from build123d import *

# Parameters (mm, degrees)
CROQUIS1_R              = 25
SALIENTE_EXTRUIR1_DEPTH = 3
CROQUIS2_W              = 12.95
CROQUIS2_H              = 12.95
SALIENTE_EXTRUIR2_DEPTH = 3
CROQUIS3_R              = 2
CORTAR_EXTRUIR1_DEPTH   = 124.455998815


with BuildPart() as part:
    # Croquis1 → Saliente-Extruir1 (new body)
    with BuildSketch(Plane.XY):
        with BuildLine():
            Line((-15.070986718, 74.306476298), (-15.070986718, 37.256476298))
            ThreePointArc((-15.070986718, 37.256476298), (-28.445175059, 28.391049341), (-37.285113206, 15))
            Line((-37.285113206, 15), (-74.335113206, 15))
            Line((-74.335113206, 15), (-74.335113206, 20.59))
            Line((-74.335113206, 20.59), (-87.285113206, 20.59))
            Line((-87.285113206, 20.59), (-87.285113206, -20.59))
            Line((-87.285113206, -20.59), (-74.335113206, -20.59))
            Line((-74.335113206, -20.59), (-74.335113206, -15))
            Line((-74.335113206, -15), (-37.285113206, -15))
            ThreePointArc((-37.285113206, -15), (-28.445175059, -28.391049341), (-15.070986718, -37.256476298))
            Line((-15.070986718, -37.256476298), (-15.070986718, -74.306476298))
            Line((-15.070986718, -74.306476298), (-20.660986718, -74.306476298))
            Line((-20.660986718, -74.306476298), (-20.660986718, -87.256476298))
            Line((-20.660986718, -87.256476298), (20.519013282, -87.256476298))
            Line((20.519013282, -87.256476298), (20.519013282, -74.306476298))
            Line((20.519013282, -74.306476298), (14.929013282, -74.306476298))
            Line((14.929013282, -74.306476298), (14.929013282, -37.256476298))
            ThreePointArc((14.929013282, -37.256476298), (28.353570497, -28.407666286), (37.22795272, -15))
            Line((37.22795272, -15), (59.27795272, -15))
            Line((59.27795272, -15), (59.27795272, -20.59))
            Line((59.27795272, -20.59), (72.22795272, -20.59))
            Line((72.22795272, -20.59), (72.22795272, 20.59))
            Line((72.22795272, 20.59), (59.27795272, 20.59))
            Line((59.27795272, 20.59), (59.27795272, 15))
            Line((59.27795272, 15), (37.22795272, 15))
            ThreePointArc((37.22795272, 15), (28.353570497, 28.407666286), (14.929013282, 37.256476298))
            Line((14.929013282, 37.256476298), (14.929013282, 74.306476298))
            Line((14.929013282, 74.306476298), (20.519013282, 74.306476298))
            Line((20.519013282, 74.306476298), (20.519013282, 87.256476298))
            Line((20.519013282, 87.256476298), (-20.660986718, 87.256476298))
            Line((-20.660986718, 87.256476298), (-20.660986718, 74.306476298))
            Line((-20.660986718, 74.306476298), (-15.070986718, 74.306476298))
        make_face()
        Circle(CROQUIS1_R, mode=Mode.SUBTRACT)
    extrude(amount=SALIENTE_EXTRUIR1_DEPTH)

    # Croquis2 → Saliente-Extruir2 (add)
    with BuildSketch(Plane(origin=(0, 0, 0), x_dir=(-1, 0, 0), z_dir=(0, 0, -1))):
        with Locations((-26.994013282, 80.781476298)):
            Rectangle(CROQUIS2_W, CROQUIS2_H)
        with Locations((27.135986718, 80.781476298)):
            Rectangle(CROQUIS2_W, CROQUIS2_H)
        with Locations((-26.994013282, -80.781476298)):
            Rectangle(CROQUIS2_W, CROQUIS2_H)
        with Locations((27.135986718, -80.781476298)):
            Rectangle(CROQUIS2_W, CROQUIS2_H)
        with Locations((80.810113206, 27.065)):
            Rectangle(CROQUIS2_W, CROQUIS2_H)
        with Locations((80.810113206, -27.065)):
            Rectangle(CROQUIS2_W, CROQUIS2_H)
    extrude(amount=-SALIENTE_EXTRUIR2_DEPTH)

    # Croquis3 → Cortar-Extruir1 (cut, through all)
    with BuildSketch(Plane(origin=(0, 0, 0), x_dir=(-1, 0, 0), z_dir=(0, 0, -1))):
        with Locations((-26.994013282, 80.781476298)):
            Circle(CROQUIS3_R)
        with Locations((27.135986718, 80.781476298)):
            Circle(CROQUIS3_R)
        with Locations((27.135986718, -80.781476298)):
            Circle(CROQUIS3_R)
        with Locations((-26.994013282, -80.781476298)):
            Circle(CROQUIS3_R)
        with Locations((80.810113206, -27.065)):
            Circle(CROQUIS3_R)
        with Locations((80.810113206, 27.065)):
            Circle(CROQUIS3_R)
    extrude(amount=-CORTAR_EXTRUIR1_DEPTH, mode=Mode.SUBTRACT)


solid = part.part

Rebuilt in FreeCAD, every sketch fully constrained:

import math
import FreeCAD as App
import Part
import Sketcher
from FreeCAD import Vector
Q = App.Units.Quantity

doc = App.newDocument("Part")
body = doc.addObject("PartDesign::Body", "Body")

# Sketch on XY plane
sketch1 = body.newObject("Sketcher::SketchObject", "Sketch")
sketch1.AttachmentSupport = (doc.getObject("XY_Plane"), [""])
sketch1.MapMode = "FlatFace"
sketch1.addGeometry(Part.LineSegment(Vector(-15, 74, 0), Vector(-15, 37, 0)), False)
sketch1.addGeometry(Part.ArcOfCircle(Part.Circle(Vector(0, 0, 0), Vector(0, 0, 1), 40), math.radians(112), math.radians(158)), False)
sketch1.addGeometry(Part.LineSegment(Vector(-37, 15, 0), Vector(-74, 15, 0)), False)
sketch1.addGeometry(Part.LineSegment(Vector(-74, 15, 0), Vector(-74, 21, 0)), False)
sketch1.addGeometry(Part.LineSegment(Vector(-74, 21, 0), Vector(-87, 21, 0)), False)
sketch1.addGeometry(Part.LineSegment(Vector(-87, 21, 0), Vector(-87, -21, 0)), False)
sketch1.addGeometry(Part.LineSegment(Vector(-87, -21, 0), Vector(-74, -21, 0)), False)
sketch1.addGeometry(Part.LineSegment(Vector(-74, -21, 0), Vector(-74, -15, 0)), False)
sketch1.addGeometry(Part.LineSegment(Vector(-74, -15, 0), Vector(-37, -15, 0)), False)
sketch1.addGeometry(Part.ArcOfCircle(Part.Circle(Vector(0, 0, 0), Vector(0, 0, 1), 40), math.radians(-158), math.radians(-112)), False)
sketch1.addGeometry(Part.LineSegment(Vector(-15, -37, 0), Vector(-15, -74, 0)), False)
sketch1.addGeometry(Part.LineSegment(Vector(-15, -74, 0), Vector(-21, -74, 0)), False)
sketch1.addGeometry(Part.LineSegment(Vector(-21, -74, 0), Vector(-21, -87, 0)), False)
sketch1.addGeometry(Part.LineSegment(Vector(-21, -87, 0), Vector(21, -87, 0)), False)
sketch1.addGeometry(Part.LineSegment(Vector(21, -87, 0), Vector(21, -74, 0)), False)
sketch1.addGeometry(Part.LineSegment(Vector(21, -74, 0), Vector(15, -74, 0)), False)
sketch1.addGeometry(Part.LineSegment(Vector(15, -74, 0), Vector(15, -37, 0)), False)
sketch1.addGeometry(Part.ArcOfCircle(Part.Circle(Vector(0, 0, 0), Vector(0, 0, 1), 40), math.radians(-68), math.radians(-22)), False)
sketch1.addGeometry(Part.LineSegment(Vector(37, -15, 0), Vector(59, -15, 0)), False)
sketch1.addGeometry(Part.LineSegment(Vector(59, -15, 0), Vector(59, -21, 0)), False)
sketch1.addGeometry(Part.LineSegment(Vector(59, -21, 0), Vector(72, -21, 0)), False)
sketch1.addGeometry(Part.LineSegment(Vector(72, -21, 0), Vector(72, 21, 0)), False)
sketch1.addGeometry(Part.LineSegment(Vector(72, 21, 0), Vector(59, 21, 0)), False)
sketch1.addGeometry(Part.LineSegment(Vector(59, 21, 0), Vector(59, 15, 0)), False)
sketch1.addGeometry(Part.LineSegment(Vector(59, 15, 0), Vector(37, 15, 0)), False)
sketch1.addGeometry(Part.ArcOfCircle(Part.Circle(Vector(0, 0, 0), Vector(0, 0, 1), 40), math.radians(22), math.radians(68)), False)
sketch1.addGeometry(Part.LineSegment(Vector(15, 37, 0), Vector(15, 74, 0)), False)
sketch1.addGeometry(Part.LineSegment(Vector(15, 74, 0), Vector(21, 74, 0)), False)
sketch1.addGeometry(Part.LineSegment(Vector(21, 74, 0), Vector(21, 87, 0)), False)
sketch1.addGeometry(Part.LineSegment(Vector(21, 87, 0), Vector(-21, 87, 0)), False)
sketch1.addGeometry(Part.LineSegment(Vector(-21, 87, 0), Vector(-21, 74, 0)), False)
sketch1.addGeometry(Part.LineSegment(Vector(-21, 74, 0), Vector(-15, 74, 0)), False)
sketch1.addGeometry(Part.Circle(Vector(0, 0, 0), Vector(0, 0, 1), 25), False)
sketch1.addConstraint(Sketcher.Constraint("Coincident", 0, 2, 1, 1))
sketch1.addConstraint(Sketcher.Constraint("Coincident", 1, 2, 2, 1))
sketch1.addConstraint(Sketcher.Constraint("Coincident", 2, 2, 3, 1))
sketch1.addConstraint(Sketcher.Constraint("Coincident", 3, 2, 4, 1))
sketch1.addConstraint(Sketcher.Constraint("Coincident", 4, 2, 5, 1))
sketch1.addConstraint(Sketcher.Constraint("Coincident", 5, 2, 6, 1))
sketch1.addConstraint(Sketcher.Constraint("Coincident", 6, 2, 7, 1))
sketch1.addConstraint(Sketcher.Constraint("Coincident", 7, 2, 8, 1))
sketch1.addConstraint(Sketcher.Constraint("Coincident", 8, 2, 9, 1))
sketch1.addConstraint(Sketcher.Constraint("Coincident", 9, 2, 10, 1))
sketch1.addConstraint(Sketcher.Constraint("Coincident", 10, 2, 11, 1))
sketch1.addConstraint(Sketcher.Constraint("Coincident", 11, 2, 12, 1))
sketch1.addConstraint(Sketcher.Constraint("Coincident", 12, 2, 13, 1))
sketch1.addConstraint(Sketcher.Constraint("Coincident", 13, 2, 14, 1))
sketch1.addConstraint(Sketcher.Constraint("Coincident", 14, 2, 15, 1))
sketch1.addConstraint(Sketcher.Constraint("Coincident", 15, 2, 16, 1))
sketch1.addConstraint(Sketcher.Constraint("Coincident", 16, 2, 17, 1))
sketch1.addConstraint(Sketcher.Constraint("Coincident", 17, 2, 18, 1))
sketch1.addConstraint(Sketcher.Constraint("Coincident", 18, 2, 19, 1))
sketch1.addConstraint(Sketcher.Constraint("Coincident", 19, 2, 20, 1))
sketch1.addConstraint(Sketcher.Constraint("Coincident", 20, 2, 21, 1))
sketch1.addConstraint(Sketcher.Constraint("Coincident", 21, 2, 22, 1))
sketch1.addConstraint(Sketcher.Constraint("Coincident", 22, 2, 23, 1))
sketch1.addConstraint(Sketcher.Constraint("Coincident", 23, 2, 24, 1))
sketch1.addConstraint(Sketcher.Constraint("Coincident", 24, 2, 25, 1))
sketch1.addConstraint(Sketcher.Constraint("Coincident", 25, 2, 26, 1))
sketch1.addConstraint(Sketcher.Constraint("Coincident", 26, 2, 27, 1))
sketch1.addConstraint(Sketcher.Constraint("Coincident", 27, 2, 28, 1))
sketch1.addConstraint(Sketcher.Constraint("Coincident", 28, 2, 29, 1))
sketch1.addConstraint(Sketcher.Constraint("Coincident", 29, 2, 30, 1))
sketch1.addConstraint(Sketcher.Constraint("Coincident", 30, 2, 31, 1))
sketch1.addConstraint(Sketcher.Constraint("Coincident", 31, 2, 0, 1))
sketch1.addConstraint(Sketcher.Constraint("Vertical", 0))
sketch1.addConstraint(Sketcher.Constraint("Horizontal", 2))
sketch1.addConstraint(Sketcher.Constraint("Vertical", 3))
sketch1.addConstraint(Sketcher.Constraint("Horizontal", 4))
sketch1.addConstraint(Sketcher.Constraint("Vertical", 5))
sketch1.addConstraint(Sketcher.Constraint("Horizontal", 6))
sketch1.addConstraint(Sketcher.Constraint("Vertical", 7))
sketch1.addConstraint(Sketcher.Constraint("Horizontal", 8))
sketch1.addConstraint(Sketcher.Constraint("Vertical", 10))
sketch1.addConstraint(Sketcher.Constraint("Horizontal", 11))
sketch1.addConstraint(Sketcher.Constraint("Vertical", 12))
sketch1.addConstraint(Sketcher.Constraint("Horizontal", 13))
sketch1.addConstraint(Sketcher.Constraint("Vertical", 14))
sketch1.addConstraint(Sketcher.Constraint("Horizontal", 15))
sketch1.addConstraint(Sketcher.Constraint("Vertical", 16))
sketch1.addConstraint(Sketcher.Constraint("Horizontal", 18))
sketch1.addConstraint(Sketcher.Constraint("Vertical", 19))
sketch1.addConstraint(Sketcher.Constraint("Horizontal", 20))
sketch1.addConstraint(Sketcher.Constraint("Vertical", 21))
sketch1.addConstraint(Sketcher.Constraint("Horizontal", 22))
sketch1.addConstraint(Sketcher.Constraint("Vertical", 23))
sketch1.addConstraint(Sketcher.Constraint("Horizontal", 24))
sketch1.addConstraint(Sketcher.Constraint("Vertical", 26))
sketch1.addConstraint(Sketcher.Constraint("Horizontal", 27))
sketch1.addConstraint(Sketcher.Constraint("Vertical", 28))
sketch1.addConstraint(Sketcher.Constraint("Horizontal", 29))
sketch1.addConstraint(Sketcher.Constraint("Vertical", 30))
sketch1.addConstraint(Sketcher.Constraint("Horizontal", 31))
sketch1.addConstraint(Sketcher.Constraint("Coincident", 1, 3, -1, 1))
sketch1.addConstraint(Sketcher.Constraint("Coincident", 9, 3, -1, 1))
sketch1.addConstraint(Sketcher.Constraint("Coincident", 17, 3, -1, 1))
sketch1.addConstraint(Sketcher.Constraint("Coincident", 25, 3, -1, 1))
sketch1.addConstraint(Sketcher.Constraint("Coincident", 32, 3, -1, 1))
sketch1.addConstraint(Sketcher.Constraint("Equal", 1, 9))
sketch1.addConstraint(Sketcher.Constraint("Equal", 17, 25))
sketch1.addConstraint(Sketcher.Constraint("Symmetric", 3, 2, 6, 2, -1))
sketch1.addConstraint(Sketcher.Constraint("Symmetric", 19, 2, 22, 2, -1))
sketch1.addConstraint(Sketcher.Constraint("Symmetric", 15, 2, 26, 2, -1))
sketch1.addConstraint(Sketcher.Constraint("Symmetric", 13, 2, 28, 2, -1))
sketch1.addConstraint(Sketcher.Constraint("Symmetric", 11, 2, 30, 2, -1))
sketch1.addConstraint(Sketcher.Constraint("Horizontal", 11, 2, 14, 2))
sketch1.addConstraint(Sketcher.Constraint("Horizontal", 9, 2, 16, 2))
sketch1.addConstraint(Sketcher.Constraint("Horizontal", 8, 2, 17, 2))
sketch1.addConstraint(Sketcher.Constraint("Horizontal", 6, 2, 19, 2))
sketch1.addConstraint(Sketcher.Constraint("Horizontal", 2, 2, 23, 2))
sketch1.addConstraint(Sketcher.Constraint("Horizontal", 0, 2, 25, 2))
sketch1.addConstraint(Sketcher.Constraint("Vertical", 1, 2, 8, 2))
sketch1.addConstraint(Sketcher.Constraint("Equal", 11, 15))
sketch1.addConstraint(Sketcher.Constraint("Equal", 6, 20))
sketch1.addConstraint(Sketcher.Constraint("Equal", 8, 0))
sketch1.addConstraint(Sketcher.Constraint("Equal", 31, 3))
sketch1.addConstraint(Sketcher.Constraint("Equal", 29, 5))
sketch1.addConstraint(Sketcher.Constraint("Equal", 22, 12))
sketch1.addConstraint(Sketcher.Constraint("Diameter", 32, Q("50 mm")))
sketch1.addConstraint(Sketcher.Constraint("DistanceY", -1, 1, 1, 2, Q("15 mm")))
sketch1.addConstraint(Sketcher.Constraint("DistanceX", 4, 2, 1, 2, Q("50 mm")))
sketch1.addConstraint(Sketcher.Constraint("DistanceX", 17, 2, 20, 2, Q("35 mm")))
sketch1.addConstraint(Sketcher.Constraint("DistanceX", 2, 2, 2, 1, Q("37.05 mm")))
sketch1.addConstraint(Sketcher.Constraint("DistanceX", 11, 2, 11, 1, Q("5.59 mm")))
sketch1.addConstraint(Sketcher.Constraint("Radius", 1, Q("40.189298 mm")))
sketch1.addConstraint(Sketcher.Constraint("Radius", 17, Q("40.136274 mm")))
pad1 = body.newObject("PartDesign::Pad", "Pad")
pad1.Profile = sketch1
pad1.Length = 3

# Sketch on XY plane
sketch2 = body.newObject("Sketcher::SketchObject", "Sketch001")
sketch2.AttachmentSupport = (doc.getObject("XY_Plane"), [""])
sketch2.MapMode = "FlatFace"
sketch2.addGeometry(Part.LineSegment(Vector(33, 87, 0), Vector(33, 74, 0)), False)
sketch2.addGeometry(Part.LineSegment(Vector(33, 74, 0), Vector(21, 74, 0)), False)
sketch2.addGeometry(Part.LineSegment(Vector(21, 74, 0), Vector(21, 87, 0)), False)
sketch2.addGeometry(Part.LineSegment(Vector(21, 87, 0), Vector(33, 87, 0)), False)
sketch2.addGeometry(Part.LineSegment(Vector(-21, 87, 0), Vector(-21, 74, 0)), False)
sketch2.addGeometry(Part.LineSegment(Vector(-21, 74, 0), Vector(-34, 74, 0)), False)
sketch2.addGeometry(Part.LineSegment(Vector(-34, 74, 0), Vector(-34, 87, 0)), False)
sketch2.addGeometry(Part.LineSegment(Vector(-34, 87, 0), Vector(-21, 87, 0)), False)
sketch2.addGeometry(Part.LineSegment(Vector(33, -74, 0), Vector(33, -87, 0)), False)
sketch2.addGeometry(Part.LineSegment(Vector(33, -87, 0), Vector(21, -87, 0)), False)
sketch2.addGeometry(Part.LineSegment(Vector(21, -87, 0), Vector(21, -74, 0)), False)
sketch2.addGeometry(Part.LineSegment(Vector(21, -74, 0), Vector(33, -74, 0)), False)
sketch2.addGeometry(Part.LineSegment(Vector(-21, -74, 0), Vector(-21, -87, 0)), False)
sketch2.addGeometry(Part.LineSegment(Vector(-21, -87, 0), Vector(-34, -87, 0)), False)
sketch2.addGeometry(Part.LineSegment(Vector(-34, -87, 0), Vector(-34, -74, 0)), False)
sketch2.addGeometry(Part.LineSegment(Vector(-34, -74, 0), Vector(-21, -74, 0)), False)
sketch2.addGeometry(Part.LineSegment(Vector(-74, 34, 0), Vector(-74, 21, 0)), False)
sketch2.addGeometry(Part.LineSegment(Vector(-74, 21, 0), Vector(-87, 21, 0)), False)
sketch2.addGeometry(Part.LineSegment(Vector(-87, 21, 0), Vector(-87, 34, 0)), False)
sketch2.addGeometry(Part.LineSegment(Vector(-87, 34, 0), Vector(-74, 34, 0)), False)
sketch2.addGeometry(Part.LineSegment(Vector(-74, -21, 0), Vector(-74, -34, 0)), False)
sketch2.addGeometry(Part.LineSegment(Vector(-74, -34, 0), Vector(-87, -34, 0)), False)
sketch2.addGeometry(Part.LineSegment(Vector(-87, -34, 0), Vector(-87, -21, 0)), False)
sketch2.addGeometry(Part.LineSegment(Vector(-87, -21, 0), Vector(-74, -21, 0)), False)
sketch2.addConstraint(Sketcher.Constraint("Coincident", 0, 2, 1, 1))
sketch2.addConstraint(Sketcher.Constraint("Coincident", 1, 2, 2, 1))
sketch2.addConstraint(Sketcher.Constraint("Coincident", 2, 2, 3, 1))
sketch2.addConstraint(Sketcher.Constraint("Coincident", 3, 2, 0, 1))
sketch2.addConstraint(Sketcher.Constraint("Coincident", 4, 2, 5, 1))
sketch2.addConstraint(Sketcher.Constraint("Coincident", 5, 2, 6, 1))
sketch2.addConstraint(Sketcher.Constraint("Coincident", 6, 2, 7, 1))
sketch2.addConstraint(Sketcher.Constraint("Coincident", 7, 2, 4, 1))
sketch2.addConstraint(Sketcher.Constraint("Coincident", 8, 2, 9, 1))
sketch2.addConstraint(Sketcher.Constraint("Coincident", 9, 2, 10, 1))
sketch2.addConstraint(Sketcher.Constraint("Coincident", 10, 2, 11, 1))
sketch2.addConstraint(Sketcher.Constraint("Coincident", 11, 2, 8, 1))
sketch2.addConstraint(Sketcher.Constraint("Coincident", 12, 2, 13, 1))
sketch2.addConstraint(Sketcher.Constraint("Coincident", 13, 2, 14, 1))
sketch2.addConstraint(Sketcher.Constraint("Coincident", 14, 2, 15, 1))
sketch2.addConstraint(Sketcher.Constraint("Coincident", 15, 2, 12, 1))
sketch2.addConstraint(Sketcher.Constraint("Coincident", 16, 2, 17, 1))
sketch2.addConstraint(Sketcher.Constraint("Coincident", 17, 2, 18, 1))
sketch2.addConstraint(Sketcher.Constraint("Coincident", 18, 2, 19, 1))
sketch2.addConstraint(Sketcher.Constraint("Coincident", 19, 2, 16, 1))
sketch2.addConstraint(Sketcher.Constraint("Coincident", 20, 2, 21, 1))
sketch2.addConstraint(Sketcher.Constraint("Coincident", 21, 2, 22, 1))
sketch2.addConstraint(Sketcher.Constraint("Coincident", 22, 2, 23, 1))
sketch2.addConstraint(Sketcher.Constraint("Coincident", 23, 2, 20, 1))
sketch2.addConstraint(Sketcher.Constraint("Vertical", 0))
sketch2.addConstraint(Sketcher.Constraint("Horizontal", 1))
sketch2.addConstraint(Sketcher.Constraint("Vertical", 2))
sketch2.addConstraint(Sketcher.Constraint("Horizontal", 3))
sketch2.addConstraint(Sketcher.Constraint("Vertical", 4))
sketch2.addConstraint(Sketcher.Constraint("Horizontal", 5))
sketch2.addConstraint(Sketcher.Constraint("Vertical", 6))
sketch2.addConstraint(Sketcher.Constraint("Horizontal", 7))
sketch2.addConstraint(Sketcher.Constraint("Vertical", 8))
sketch2.addConstraint(Sketcher.Constraint("Horizontal", 9))
sketch2.addConstraint(Sketcher.Constraint("Vertical", 10))
sketch2.addConstraint(Sketcher.Constraint("Horizontal", 11))
sketch2.addConstraint(Sketcher.Constraint("Vertical", 12))
sketch2.addConstraint(Sketcher.Constraint("Horizontal", 13))
sketch2.addConstraint(Sketcher.Constraint("Vertical", 14))
sketch2.addConstraint(Sketcher.Constraint("Horizontal", 15))
sketch2.addConstraint(Sketcher.Constraint("Vertical", 16))
sketch2.addConstraint(Sketcher.Constraint("Horizontal", 17))
sketch2.addConstraint(Sketcher.Constraint("Vertical", 18))
sketch2.addConstraint(Sketcher.Constraint("Horizontal", 19))
sketch2.addConstraint(Sketcher.Constraint("Vertical", 20))
sketch2.addConstraint(Sketcher.Constraint("Horizontal", 21))
sketch2.addConstraint(Sketcher.Constraint("Vertical", 22))
sketch2.addConstraint(Sketcher.Constraint("Horizontal", 23))
sketch2.addConstraint(Sketcher.Constraint("Symmetric", 3, 2, 8, 2, -1))
sketch2.addConstraint(Sketcher.Constraint("Symmetric", 1, 2, 10, 2, -1))
sketch2.addConstraint(Sketcher.Constraint("Symmetric", 7, 2, 12, 2, -1))
sketch2.addConstraint(Sketcher.Constraint("Symmetric", 5, 2, 14, 2, -1))
sketch2.addConstraint(Sketcher.Constraint("Symmetric", 19, 2, 20, 2, -1))
sketch2.addConstraint(Sketcher.Constraint("Symmetric", 17, 2, 22, 2, -1))
sketch2.addConstraint(Sketcher.Constraint("Horizontal", 1, 2, 4, 2))
sketch2.addConstraint(Sketcher.Constraint("Horizontal", 3, 2, 6, 2))
sketch2.addConstraint(Sketcher.Constraint("Equal", 3, 5))
sketch2.addConstraint(Sketcher.Constraint("Equal", 15, 17))
sketch2.addConstraint(Sketcher.Constraint("Equal", 23, 0))
sketch2.addConstraint(Sketcher.Constraint("Equal", 14, 16))
sketch2.addConstraint(Sketcher.Constraint("DistanceX", 1, 2, 1, 1, Q("12.95 mm")))
sketch2.addConstraint(Sketcher.Constraint("DistanceY", -1, 1, 16, 2, Q("20.59 mm")))
sketch2.addConstraint(Sketcher.Constraint("DistanceX", 4, 2, 1, 2, Q("41.18 mm")))
sketch2.addConstraint(Sketcher.Constraint("DistanceX", -1, 1, 0, 2, Q("33.469013 mm")))
sketch2.addConstraint(Sketcher.Constraint("DistanceY", -1, 1, 0, 2, Q("74.306476 mm")))
sketch2.addConstraint(Sketcher.Constraint("DistanceX", 16, 2, -1, 1, Q("74.335113 mm")))
pad2 = body.newObject("PartDesign::Pad", "Pad001")
pad2.Profile = sketch2
pad2.Length = 3

# Sketch on XY plane
sketch3 = body.newObject("Sketcher::SketchObject", "Sketch002")
sketch3.AttachmentSupport = (doc.getObject("XY_Plane"), [""])
sketch3.MapMode = "FlatFace"
sketch3.addGeometry(Part.Circle(Vector(27, 80.8, 0), Vector(0, 0, 1), 2), False)
sketch3.addGeometry(Part.Circle(Vector(-27.1, 80.8, 0), Vector(0, 0, 1), 2), False)
sketch3.addGeometry(Part.Circle(Vector(-27.1, -80.8, 0), Vector(0, 0, 1), 2), False)
sketch3.addGeometry(Part.Circle(Vector(27, -80.8, 0), Vector(0, 0, 1), 2), False)
sketch3.addGeometry(Part.Circle(Vector(-80.8, -27.1, 0), Vector(0, 0, 1), 2), False)
sketch3.addGeometry(Part.Circle(Vector(-80.8, 27.1, 0), Vector(0, 0, 1), 2), False)
sketch3.addConstraint(Sketcher.Constraint("Equal", 0, 1))
sketch3.addConstraint(Sketcher.Constraint("Equal", 1, 2))
sketch3.addConstraint(Sketcher.Constraint("Equal", 2, 3))
sketch3.addConstraint(Sketcher.Constraint("Equal", 3, 4))
sketch3.addConstraint(Sketcher.Constraint("Equal", 4, 5))
sketch3.addConstraint(Sketcher.Constraint("Symmetric", 1, 3, 2, 3, -1))
sketch3.addConstraint(Sketcher.Constraint("Symmetric", 0, 3, 3, 3, -1))
sketch3.addConstraint(Sketcher.Constraint("Symmetric", 4, 3, 5, 3, -1))
sketch3.addConstraint(Sketcher.Constraint("Horizontal", 0, 3, 1, 3))
sketch3.addConstraint(Sketcher.Constraint("Diameter", 0, Q("4 mm")))
sketch3.addConstraint(Sketcher.Constraint("DistanceX", 1, 3, 0, 3, Q("54.13 mm")))
sketch3.addConstraint(Sketcher.Constraint("DistanceY", 4, 3, 5, 3, Q("54.13 mm")))
sketch3.addConstraint(Sketcher.Constraint("DistanceX", -1, 1, 0, 3, Q("26.994013 mm")))
sketch3.addConstraint(Sketcher.Constraint("DistanceY", -1, 1, 0, 3, Q("80.781476 mm")))
sketch3.addConstraint(Sketcher.Constraint("DistanceX", 4, 3, -1, 1, Q("80.810113 mm")))
pocket1 = body.newObject("PartDesign::Pocket", "Pocket")
pocket1.Profile = sketch3
pocket1.Type = "ThroughAll"
pocket1.Reversed = True

doc.recompute()
